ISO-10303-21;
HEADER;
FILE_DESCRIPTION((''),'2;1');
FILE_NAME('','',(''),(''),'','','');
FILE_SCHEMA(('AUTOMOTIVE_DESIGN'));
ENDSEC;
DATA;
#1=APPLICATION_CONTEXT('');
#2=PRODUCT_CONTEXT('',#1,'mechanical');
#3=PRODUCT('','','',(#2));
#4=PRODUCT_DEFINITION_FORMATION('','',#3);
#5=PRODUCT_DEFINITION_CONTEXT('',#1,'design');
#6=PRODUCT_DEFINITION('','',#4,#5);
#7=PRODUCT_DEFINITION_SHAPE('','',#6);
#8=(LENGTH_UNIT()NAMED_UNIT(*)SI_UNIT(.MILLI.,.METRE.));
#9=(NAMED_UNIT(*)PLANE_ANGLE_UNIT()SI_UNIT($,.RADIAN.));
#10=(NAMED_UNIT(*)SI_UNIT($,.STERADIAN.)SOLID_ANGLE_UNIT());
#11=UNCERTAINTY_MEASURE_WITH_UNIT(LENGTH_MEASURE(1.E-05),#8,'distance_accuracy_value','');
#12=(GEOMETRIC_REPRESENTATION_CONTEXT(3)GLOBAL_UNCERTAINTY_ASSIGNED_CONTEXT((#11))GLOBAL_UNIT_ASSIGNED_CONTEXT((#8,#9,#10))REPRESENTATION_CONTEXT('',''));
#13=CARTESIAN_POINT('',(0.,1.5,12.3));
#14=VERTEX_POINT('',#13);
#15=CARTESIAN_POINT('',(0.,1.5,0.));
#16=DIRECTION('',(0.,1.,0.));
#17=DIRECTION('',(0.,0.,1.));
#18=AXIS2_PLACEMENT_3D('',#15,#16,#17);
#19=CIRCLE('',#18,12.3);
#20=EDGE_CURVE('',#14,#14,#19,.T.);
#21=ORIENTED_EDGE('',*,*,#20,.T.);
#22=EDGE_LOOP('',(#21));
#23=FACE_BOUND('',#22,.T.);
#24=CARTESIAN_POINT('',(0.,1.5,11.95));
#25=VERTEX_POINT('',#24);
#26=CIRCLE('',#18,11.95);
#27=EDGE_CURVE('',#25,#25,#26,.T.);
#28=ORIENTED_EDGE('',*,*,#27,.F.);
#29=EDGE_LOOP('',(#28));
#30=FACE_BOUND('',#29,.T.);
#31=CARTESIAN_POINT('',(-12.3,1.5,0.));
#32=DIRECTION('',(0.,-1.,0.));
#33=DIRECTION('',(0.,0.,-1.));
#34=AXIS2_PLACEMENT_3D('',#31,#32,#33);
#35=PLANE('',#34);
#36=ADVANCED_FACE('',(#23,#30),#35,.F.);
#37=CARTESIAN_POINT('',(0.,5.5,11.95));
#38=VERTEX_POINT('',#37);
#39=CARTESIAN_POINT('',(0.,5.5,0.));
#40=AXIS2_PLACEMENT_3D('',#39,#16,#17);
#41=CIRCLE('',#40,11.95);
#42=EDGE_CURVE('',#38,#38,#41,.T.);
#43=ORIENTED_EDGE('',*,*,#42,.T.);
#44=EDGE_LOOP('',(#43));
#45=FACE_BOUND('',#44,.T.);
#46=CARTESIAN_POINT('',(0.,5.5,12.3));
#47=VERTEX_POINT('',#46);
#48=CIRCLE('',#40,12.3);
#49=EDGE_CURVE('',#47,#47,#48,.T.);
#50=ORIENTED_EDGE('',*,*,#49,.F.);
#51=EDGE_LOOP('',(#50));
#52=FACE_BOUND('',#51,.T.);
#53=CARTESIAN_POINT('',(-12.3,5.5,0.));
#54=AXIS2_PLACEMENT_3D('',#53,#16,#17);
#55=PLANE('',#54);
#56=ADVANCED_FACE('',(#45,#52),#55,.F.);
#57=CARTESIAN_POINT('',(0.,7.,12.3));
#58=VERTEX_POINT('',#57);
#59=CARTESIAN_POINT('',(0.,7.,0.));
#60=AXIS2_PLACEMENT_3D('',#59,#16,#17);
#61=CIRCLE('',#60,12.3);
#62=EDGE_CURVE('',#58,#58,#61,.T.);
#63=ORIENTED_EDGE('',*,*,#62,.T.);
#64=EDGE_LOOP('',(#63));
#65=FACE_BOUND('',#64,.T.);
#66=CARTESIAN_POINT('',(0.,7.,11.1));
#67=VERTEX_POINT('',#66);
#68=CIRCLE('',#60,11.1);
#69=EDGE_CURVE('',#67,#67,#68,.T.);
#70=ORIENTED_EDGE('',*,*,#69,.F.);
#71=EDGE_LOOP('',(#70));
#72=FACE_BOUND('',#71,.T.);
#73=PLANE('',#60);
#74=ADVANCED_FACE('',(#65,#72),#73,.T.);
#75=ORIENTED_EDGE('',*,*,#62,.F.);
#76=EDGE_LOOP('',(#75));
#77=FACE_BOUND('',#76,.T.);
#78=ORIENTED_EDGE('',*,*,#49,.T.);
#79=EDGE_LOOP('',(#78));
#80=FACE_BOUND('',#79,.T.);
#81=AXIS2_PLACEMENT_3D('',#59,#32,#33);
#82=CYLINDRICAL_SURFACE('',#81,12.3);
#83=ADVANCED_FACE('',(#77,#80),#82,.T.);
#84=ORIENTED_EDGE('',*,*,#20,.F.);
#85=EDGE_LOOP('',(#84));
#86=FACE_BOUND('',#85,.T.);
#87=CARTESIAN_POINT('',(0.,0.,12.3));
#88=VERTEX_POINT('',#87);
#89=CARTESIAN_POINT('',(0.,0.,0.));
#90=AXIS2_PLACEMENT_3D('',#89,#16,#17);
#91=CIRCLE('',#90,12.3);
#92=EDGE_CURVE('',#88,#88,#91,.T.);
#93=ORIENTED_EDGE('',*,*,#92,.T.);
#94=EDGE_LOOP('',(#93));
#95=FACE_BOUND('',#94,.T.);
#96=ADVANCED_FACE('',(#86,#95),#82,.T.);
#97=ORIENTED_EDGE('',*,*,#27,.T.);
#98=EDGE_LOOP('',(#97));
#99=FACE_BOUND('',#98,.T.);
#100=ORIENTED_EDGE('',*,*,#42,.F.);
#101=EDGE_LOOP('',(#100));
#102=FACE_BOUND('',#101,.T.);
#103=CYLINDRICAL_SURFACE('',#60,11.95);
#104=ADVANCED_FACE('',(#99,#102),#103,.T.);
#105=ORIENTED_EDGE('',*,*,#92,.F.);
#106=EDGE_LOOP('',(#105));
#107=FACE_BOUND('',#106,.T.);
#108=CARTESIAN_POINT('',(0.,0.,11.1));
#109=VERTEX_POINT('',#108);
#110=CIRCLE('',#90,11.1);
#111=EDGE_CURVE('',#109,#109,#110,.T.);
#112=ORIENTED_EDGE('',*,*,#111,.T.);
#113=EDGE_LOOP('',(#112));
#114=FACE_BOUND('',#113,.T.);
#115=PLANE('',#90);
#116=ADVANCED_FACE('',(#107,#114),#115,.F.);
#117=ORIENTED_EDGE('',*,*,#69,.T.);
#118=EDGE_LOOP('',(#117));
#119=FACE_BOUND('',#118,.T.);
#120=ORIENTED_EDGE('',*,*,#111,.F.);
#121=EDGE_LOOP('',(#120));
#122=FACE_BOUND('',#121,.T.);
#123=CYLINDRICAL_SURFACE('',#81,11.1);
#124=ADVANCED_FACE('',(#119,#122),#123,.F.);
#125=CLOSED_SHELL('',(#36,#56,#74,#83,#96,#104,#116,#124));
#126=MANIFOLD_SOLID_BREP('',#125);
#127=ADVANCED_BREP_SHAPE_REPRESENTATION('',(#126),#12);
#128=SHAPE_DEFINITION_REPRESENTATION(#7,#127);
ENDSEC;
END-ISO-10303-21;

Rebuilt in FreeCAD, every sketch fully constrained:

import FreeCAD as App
import Part
import Sketcher
from FreeCAD import Vector

doc = App.newDocument("Part")
body = doc.addObject("PartDesign::Body", "Body")

sketch1 = doc.addObject("Sketcher::SketchObject", "Sketch")
body.addObject(sketch1)
sketch1.AttachmentSupport = (doc.XZ_Plane, [""])
sketch1.MapMode = "FlatFace"
sketch1.addGeometry(Part.Circle(Vector(0, 0, 0), Vector(0, 0, 1), 12), False)
sketch1.addGeometry(Part.Circle(Vector(0, 0, 0), Vector(0, 0, 1), 11), False)
sketch1.addConstraint(Sketcher.Constraint("Coincident", 0, 3, -1, 1))
sketch1.addConstraint(Sketcher.Constraint("Coincident", 1, 3, -1, 1))
sketch1.addConstraint(Sketcher.Constraint("Diameter", 0, 24.6))
sketch1.addConstraint(Sketcher.Constraint("Diameter", 1, 22.2))
pad1 = doc.addObject("PartDesign::Pad", "Pad")
body.addObject(pad1)
pad1.Profile = sketch1
pad1.Length = 7
pad1.Reversed = True

sketch2 = doc.addObject("Sketcher::SketchObject", "Sketch001")
body.addObject(sketch2)
sketch2.AttachmentSupport = (doc.XY_Plane, [""])
sketch2.MapMode = "FlatFace"
sketch2.addGeometry(Part.LineSegment(Vector(-12.3, 5.5, 0), Vector(-12.3, 1.5, 0)), False)
sketch2.addGeometry(Part.LineSegment(Vector(-12.3, 1.5, 0), Vector(-11.95, 1.5, 0)), False)
sketch2.addGeometry(Part.LineSegment(Vector(-11.95, 1.5, 0), Vector(-11.95, 5.5, 0)), False)
sketch2.addGeometry(Part.LineSegment(Vector(-11.95, 5.5, 0), Vector(-12.3, 5.5, 0)), False)
sketch2.addConstraint(Sketcher.Constraint("Coincident", 0, 2, 1, 1))
sketch2.addConstraint(Sketcher.Constraint("Coincident", 1, 2, 2, 1))
sketch2.addConstraint(Sketcher.Constraint("Coincident", 2, 2, 3, 1))
sketch2.addConstraint(Sketcher.Constraint("Coincident", 3, 2, 0, 1))
sketch2.addConstraint(Sketcher.Constraint("Vertical", 0))
sketch2.addConstraint(Sketcher.Constraint("Horizontal", 1))
sketch2.addConstraint(Sketcher.Constraint("Vertical", 2))
sketch2.addConstraint(Sketcher.Constraint("Horizontal", 3))
sketch2.addConstraint(Sketcher.Constraint("DistanceY", 0, 2, 0, 1, 4.0))
sketch2.addConstraint(Sketcher.Constraint("DistanceX", 1, 1, 1, 2, 0.35))
sketch2.addConstraint(Sketcher.Constraint("DistanceX", 0, 2, -1, 1, 12.3))
sketch2.addConstraint(Sketcher.Constraint("DistanceY", -1, 1, 0, 2, 1.5))
groove = doc.addObject("PartDesign::Groove", "Groove")
body.addObject(groove)
groove.Profile = sketch2
groove.ReferenceAxis = (sketch2, ["V_Axis"])
groove.Angle = 360

doc.recompute()
